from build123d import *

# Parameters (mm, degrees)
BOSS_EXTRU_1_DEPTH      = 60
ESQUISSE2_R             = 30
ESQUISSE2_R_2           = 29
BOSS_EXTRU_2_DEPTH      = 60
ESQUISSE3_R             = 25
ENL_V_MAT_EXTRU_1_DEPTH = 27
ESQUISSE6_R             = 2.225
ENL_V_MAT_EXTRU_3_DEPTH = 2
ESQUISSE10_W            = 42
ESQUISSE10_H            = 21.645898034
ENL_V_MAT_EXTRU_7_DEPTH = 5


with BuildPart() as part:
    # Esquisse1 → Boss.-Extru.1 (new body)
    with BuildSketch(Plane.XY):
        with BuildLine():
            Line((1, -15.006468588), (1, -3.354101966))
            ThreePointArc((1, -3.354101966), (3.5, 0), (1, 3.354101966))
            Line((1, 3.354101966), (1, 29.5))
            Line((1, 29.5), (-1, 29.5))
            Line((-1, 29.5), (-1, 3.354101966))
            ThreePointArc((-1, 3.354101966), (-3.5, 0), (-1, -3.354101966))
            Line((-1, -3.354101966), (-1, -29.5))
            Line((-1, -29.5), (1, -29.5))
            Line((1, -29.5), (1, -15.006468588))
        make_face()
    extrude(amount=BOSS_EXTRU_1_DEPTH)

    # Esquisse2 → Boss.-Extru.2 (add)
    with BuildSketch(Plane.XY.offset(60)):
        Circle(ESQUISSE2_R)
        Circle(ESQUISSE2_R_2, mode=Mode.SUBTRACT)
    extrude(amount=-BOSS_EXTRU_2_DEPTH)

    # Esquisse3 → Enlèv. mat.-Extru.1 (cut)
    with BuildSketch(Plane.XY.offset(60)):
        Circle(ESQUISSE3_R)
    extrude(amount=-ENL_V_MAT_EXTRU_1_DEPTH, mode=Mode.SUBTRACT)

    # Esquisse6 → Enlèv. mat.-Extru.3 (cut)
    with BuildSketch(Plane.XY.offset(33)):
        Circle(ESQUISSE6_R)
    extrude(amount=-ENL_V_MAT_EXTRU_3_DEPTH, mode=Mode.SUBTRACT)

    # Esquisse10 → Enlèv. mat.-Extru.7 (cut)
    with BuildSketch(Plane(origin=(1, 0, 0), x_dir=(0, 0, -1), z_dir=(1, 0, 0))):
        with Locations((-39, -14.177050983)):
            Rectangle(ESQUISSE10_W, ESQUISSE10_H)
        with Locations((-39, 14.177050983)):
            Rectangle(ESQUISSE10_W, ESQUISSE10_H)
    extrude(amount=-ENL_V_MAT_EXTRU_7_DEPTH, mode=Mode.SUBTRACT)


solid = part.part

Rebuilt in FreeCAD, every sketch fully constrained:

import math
import FreeCAD as App
import Part
import Sketcher

V = App.Vector

doc = App.newDocument("Part")
body = doc.addObject("PartDesign::Body", "Body")

# Sketch on XY plane
sketch1 = body.newObject("Sketcher::SketchObject", "Sketch")
sketch1.AttachmentSupport = (doc.getObject("XY_Plane"), [""])
sketch1.MapMode = "FlatFace"
sketch1.addGeometry(Part.ArcOfCircle(Part.Circle(V(0, 0, 0), V(0, 0, 1), 3.5), math.radians(-73), math.radians(73)), False)
sketch1.addGeometry(Part.LineSegment(V(1, 3.4, 0), V(1, 29.5, 0)), False)
sketch1.addGeometry(Part.LineSegment(V(1, 29.5, 0), V(-1, 29.5, 0)), False)
sketch1.addGeometry(Part.LineSegment(V(-1, 29.5, 0), V(-1, 3.4, 0)), False)
sketch1.addGeometry(Part.ArcOfCircle(Part.Circle(V(0, 0, 0), V(0, 0, 1), 3.5), math.radians(107), math.radians(253)), False)
sketch1.addGeometry(Part.LineSegment(V(-1, -3.4, 0), V(-1, -29.5, 0)), False)
sketch1.addGeometry(Part.LineSegment(V(-1, -29.5, 0), V(1, -29.5, 0)), False)
sketch1.addGeometry(Part.LineSegment(V(1, -29.5, 0), V(1, -3.4, 0)), False)
sketch1.addConstraint(Sketcher.Constraint("Coincident", 0, 2, 1, 1))
sketch1.addConstraint(Sketcher.Constraint("Coincident", 1, 2, 2, 1))
sketch1.addConstraint(Sketcher.Constraint("Coincident", 2, 2, 3, 1))
sketch1.addConstraint(Sketcher.Constraint("Coincident", 3, 2, 4, 1))
sketch1.addConstraint(Sketcher.Constraint("Coincident", 4, 2, 5, 1))
sketch1.addConstraint(Sketcher.Constraint("Coincident", 5, 2, 6, 1))
sketch1.addConstraint(Sketcher.Constraint("Coincident", 6, 2, 7, 1))
sketch1.addConstraint(Sketcher.Constraint("Coincident", 7, 2, 0, 1))
sketch1.addConstraint(Sketcher.Constraint("Vertical", 1))
sketch1.addConstraint(Sketcher.Constraint("Horizontal", 2))
sketch1.addConstraint(Sketcher.Constraint("Vertical", 3))
sketch1.addConstraint(Sketcher.Constraint("Vertical", 5))
sketch1.addConstraint(Sketcher.Constraint("Horizontal", 6))
sketch1.addConstraint(Sketcher.Constraint("Vertical", 7))
sketch1.addConstraint(Sketcher.Constraint("Coincident", 0, 3, -1, 1))
sketch1.addConstraint(Sketcher.Constraint("Coincident", 4, 3, -1, 1))
sketch1.addConstraint(Sketcher.Constraint("Equal", 0, 4))
sketch1.addConstraint(Sketcher.Constraint("Symmetric", 1, 2, 5, 2, -1, 1))
sketch1.addConstraint(Sketcher.Constraint("Horizontal", 0, 2, 3, 2))
sketch1.addConstraint(Sketcher.Constraint("Horizontal", 4, 2, 7, 2))
sketch1.addConstraint(Sketcher.Constraint("Radius", 0, 3.5))
sketch1.addConstraint(Sketcher.Constraint("DistanceX", 2, 2, 2, 1, 2.0))
sketch1.addConstraint(Sketcher.Constraint("DistanceY", -1, 1, 1, 2, 29.5))
pad1 = body.newObject("PartDesign::Pad", "Pad")
pad1.Profile = sketch1
pad1.Length = 60

# Sketch on XY plane
sketch2 = body.newObject("Sketcher::SketchObject", "Sketch001")
sketch2.AttachmentSupport = (doc.getObject("XY_Plane"), [""])
sketch2.MapMode = "FlatFace"
sketch2.AttachmentOffset = App.Placement(V(0, 0, 60), App.Rotation())
sketch2.addGeometry(Part.Circle(V(0, 0, 0), V(0, 0, 1), 30), False)
sketch2.addGeometry(Part.Circle(V(0, 0, 0), V(0, 0, 1), 29), False)
sketch2.addConstraint(Sketcher.Constraint("Coincident", 0, 3, -1, 1))
sketch2.addConstraint(Sketcher.Constraint("Coincident", 1, 3, -1, 1))
sketch2.addConstraint(Sketcher.Constraint("Diameter", 0, 60.0))
sketch2.addConstraint(Sketcher.Constraint("Diameter", 1, 58.0))
pad2 = body.newObject("PartDesign::Pad", "Pad001")
pad2.Profile = sketch2
pad2.Length = 60
pad2.Reversed = True

# Sketch on XY plane
sketch3 = body.newObject("Sketcher::SketchObject", "Sketch002")
sketch3.AttachmentSupport = (doc.getObject("XY_Plane"), [""])
sketch3.MapMode = "FlatFace"
sketch3.AttachmentOffset = App.Placement(V(0, 0, 60), App.Rotation())
sketch3.addGeometry(Part.Circle(V(0, 0, 0), V(0, 0, 1), 25), False)
sketch3.addConstraint(Sketcher.Constraint("Coincident", 0, 3, -1, 1))
sketch3.addConstraint(Sketcher.Constraint("Diameter", 0, 50.0))
pocket1 = body.newObject("PartDesign::Pocket", "Pocket")
pocket1.Profile = sketch3
pocket1.Length = 27

# Sketch on XY plane
sketch4 = body.newObject("Sketcher::SketchObject", "Sketch003")
sketch4.AttachmentSupport = (doc.getObject("XY_Plane"), [""])
sketch4.MapMode = "FlatFace"
sketch4.AttachmentOffset = App.Placement(V(0, 0, 33), App.Rotation())
sketch4.addGeometry(Part.Circle(V(0, 0, 0), V(0, 0, 1), 2.2), False)
sketch4.addConstraint(Sketcher.Constraint("Coincident", 0, 3, -1, 1))
sketch4.addConstraint(Sketcher.Constraint("Diameter", 0, 4.45))
pocket2 = body.newObject("PartDesign::Pocket", "Pocket001")
pocket2.Profile = sketch4
pocket2.Length = 2

# Sketch on YZ plane
sketch5 = body.newObject("Sketcher::SketchObject", "Sketch004")
sketch5.AttachmentSupport = (doc.getObject("YZ_Plane"), [""])
sketch5.MapMode = "FlatFace"
sketch5.AttachmentOffset = App.Placement(V(0, 0, 1), App.Rotation())
sketch5.addGeometry(Part.LineSegment(V(-3, 60, 0), V(-25, 60, 0)), False)
sketch5.addGeometry(Part.LineSegment(V(-25, 60, 0), V(-25, 18, 0)), False)
sketch5.addGeometry(Part.LineSegment(V(-25, 18, 0), V(-3, 18, 0)), False)
sketch5.addGeometry(Part.LineSegment(V(-3, 18, 0), V(-3, 60, 0)), False)
sketch5.addGeometry(Part.LineSegment(V(25, 60, 0), V(3, 60, 0)), False)
sketch5.addGeometry(Part.LineSegment(V(3, 60, 0), V(3, 18, 0)), False)
sketch5.addGeometry(Part.LineSegment(V(3, 18, 0), V(25, 18, 0)), False)
sketch5.addGeometry(Part.LineSegment(V(25, 18, 0), V(25, 60, 0)), False)
sketch5.addConstraint(Sketcher.Constraint("Coincident", 0, 2, 1, 1))
sketch5.addConstraint(Sketcher.Constraint("Coincident", 1, 2, 2, 1))
sketch5.addConstraint(Sketcher.Constraint("Coincident", 2, 2, 3, 1))
sketch5.addConstraint(Sketcher.Constraint("Coincident", 3, 2, 0, 1))
sketch5.addConstraint(Sketcher.Constraint("Coincident", 4, 2, 5, 1))
sketch5.addConstraint(Sketcher.Constraint("Coincident", 5, 2, 6, 1))
sketch5.addConstraint(Sketcher.Constraint("Coincident", 6, 2, 7, 1))
sketch5.addConstraint(Sketcher.Constraint("Coincident", 7, 2, 4, 1))
sketch5.addConstraint(Sketcher.Constraint("Horizontal", 0))
sketch5.addConstraint(Sketcher.Constraint("Vertical", 1))
sketch5.addConstraint(Sketcher.Constraint("Horizontal", 2))
sketch5.addConstraint(Sketcher.Constraint("Vertical", 3))
sketch5.addConstraint(Sketcher.Constraint("Horizontal", 4))
sketch5.addConstraint(Sketcher.Constraint("Vertical", 5))
sketch5.addConstraint(Sketcher.Constraint("Horizontal", 6))
sketch5.addConstraint(Sketcher.Constraint("Vertical", 7))
sketch5.addConstraint(Sketcher.Constraint("Symmetric", 3, 2, 4, 2, -2))
sketch5.addConstraint(Sketcher.Constraint("Symmetric", 1, 2, 6, 2, -2))
sketch5.addConstraint(Sketcher.Constraint("DistanceY", 1, 2, 1, 1, 42.0))
sketch5.addConstraint(Sketcher.Constraint("DistanceX", 0, 2, -1, 1, 25.0))
sketch5.addConstraint(Sketcher.Constraint("DistanceY", -1, 1, 0, 2, 60.0))
sketch5.addConstraint(Sketcher.Constraint("DistanceX", 0, 2, 0, 1, 21.645898))
pocket3 = body.newObject("PartDesign::Pocket", "Pocket002")
pocket3.Profile = sketch5
pocket3.Length = 5

doc.recompute()
